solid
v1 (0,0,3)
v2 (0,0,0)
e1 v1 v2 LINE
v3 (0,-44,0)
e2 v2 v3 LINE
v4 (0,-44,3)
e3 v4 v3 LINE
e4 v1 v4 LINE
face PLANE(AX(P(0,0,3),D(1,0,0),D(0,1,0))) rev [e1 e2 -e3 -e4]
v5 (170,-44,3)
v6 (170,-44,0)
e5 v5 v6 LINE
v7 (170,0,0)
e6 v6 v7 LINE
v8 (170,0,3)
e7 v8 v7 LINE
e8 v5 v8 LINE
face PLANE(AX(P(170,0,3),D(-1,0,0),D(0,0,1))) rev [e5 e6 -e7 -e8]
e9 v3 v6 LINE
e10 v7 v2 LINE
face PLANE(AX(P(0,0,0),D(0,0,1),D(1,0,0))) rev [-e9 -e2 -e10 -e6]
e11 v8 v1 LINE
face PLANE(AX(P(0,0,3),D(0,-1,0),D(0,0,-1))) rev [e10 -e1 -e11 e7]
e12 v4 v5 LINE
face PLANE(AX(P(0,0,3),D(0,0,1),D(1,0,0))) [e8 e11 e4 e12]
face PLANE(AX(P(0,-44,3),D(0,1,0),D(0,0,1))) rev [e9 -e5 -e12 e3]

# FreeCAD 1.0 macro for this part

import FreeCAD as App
import Part
import Sketcher
from FreeCAD import Vector


def add_polygon(sketch, points):
    """Adds a closed chain of lines whose ends are joined by coincident constraints."""
    first, n = sketch.GeometryCount, len(points)
    for a, b in zip(points, points[1:] + points[:1]):
        sketch.addGeometry(Part.LineSegment(App.Vector(*a, 0), App.Vector(*b, 0)), False)
    for i in range(n):
        sketch.addConstraint(Sketcher.Constraint("Coincident", first + i, 2, first + (i + 1) % n, 1))

doc = App.newDocument("Part")
params = doc.addObject("Spreadsheet::Sheet", "Params")
for row, (alias, value) in enumerate([
    ("sketch1_width", "170 mm"),
    ("sketch1_height", "44 mm"),
    ("pad1_length", "3 mm"),
], start=1):
    params.set(f"A{row}", alias)
    params.set(f"B{row}", "=" + value)
    params.setAlias(f"B{row}", alias)

body = doc.addObject("PartDesign::Body", "Body")

# Sketch on XY plane
sketch1 = body.newObject("Sketcher::SketchObject", "Sketch")
sketch1.AttachmentSupport = (doc.getObject("XY_Plane"), [""])
sketch1.MapMode = "FlatFace"
add_polygon(sketch1, [(0, 0), (0, -44), (170, -44), (170, 0)])  # lines 0-3
sketch1.addConstraint([
    Sketcher.Constraint("Vertical", 0),
    Sketcher.Constraint("Horizontal", 1),
    Sketcher.Constraint("Vertical", 2),
    Sketcher.Constraint("Horizontal", 3),
    Sketcher.Constraint("Coincident", 3, 2, -1, 1),
    Sketcher.Constraint("DistanceX", 1, 1, 1, 2, 170.0),
    Sketcher.Constraint("DistanceY", 0, 2, 0, 1, 44.0),
])
sketch1.setExpression("Constraints[9]", "Params.sketch1_width")
sketch1.setExpression("Constraints[10]", "Params.sketch1_height")
pad1 = body.newObject("PartDesign::Pad", "Pad")
pad1.Profile = sketch1
pad1.setExpression("Length", "Params.pad1_length")

doc.recompute()
